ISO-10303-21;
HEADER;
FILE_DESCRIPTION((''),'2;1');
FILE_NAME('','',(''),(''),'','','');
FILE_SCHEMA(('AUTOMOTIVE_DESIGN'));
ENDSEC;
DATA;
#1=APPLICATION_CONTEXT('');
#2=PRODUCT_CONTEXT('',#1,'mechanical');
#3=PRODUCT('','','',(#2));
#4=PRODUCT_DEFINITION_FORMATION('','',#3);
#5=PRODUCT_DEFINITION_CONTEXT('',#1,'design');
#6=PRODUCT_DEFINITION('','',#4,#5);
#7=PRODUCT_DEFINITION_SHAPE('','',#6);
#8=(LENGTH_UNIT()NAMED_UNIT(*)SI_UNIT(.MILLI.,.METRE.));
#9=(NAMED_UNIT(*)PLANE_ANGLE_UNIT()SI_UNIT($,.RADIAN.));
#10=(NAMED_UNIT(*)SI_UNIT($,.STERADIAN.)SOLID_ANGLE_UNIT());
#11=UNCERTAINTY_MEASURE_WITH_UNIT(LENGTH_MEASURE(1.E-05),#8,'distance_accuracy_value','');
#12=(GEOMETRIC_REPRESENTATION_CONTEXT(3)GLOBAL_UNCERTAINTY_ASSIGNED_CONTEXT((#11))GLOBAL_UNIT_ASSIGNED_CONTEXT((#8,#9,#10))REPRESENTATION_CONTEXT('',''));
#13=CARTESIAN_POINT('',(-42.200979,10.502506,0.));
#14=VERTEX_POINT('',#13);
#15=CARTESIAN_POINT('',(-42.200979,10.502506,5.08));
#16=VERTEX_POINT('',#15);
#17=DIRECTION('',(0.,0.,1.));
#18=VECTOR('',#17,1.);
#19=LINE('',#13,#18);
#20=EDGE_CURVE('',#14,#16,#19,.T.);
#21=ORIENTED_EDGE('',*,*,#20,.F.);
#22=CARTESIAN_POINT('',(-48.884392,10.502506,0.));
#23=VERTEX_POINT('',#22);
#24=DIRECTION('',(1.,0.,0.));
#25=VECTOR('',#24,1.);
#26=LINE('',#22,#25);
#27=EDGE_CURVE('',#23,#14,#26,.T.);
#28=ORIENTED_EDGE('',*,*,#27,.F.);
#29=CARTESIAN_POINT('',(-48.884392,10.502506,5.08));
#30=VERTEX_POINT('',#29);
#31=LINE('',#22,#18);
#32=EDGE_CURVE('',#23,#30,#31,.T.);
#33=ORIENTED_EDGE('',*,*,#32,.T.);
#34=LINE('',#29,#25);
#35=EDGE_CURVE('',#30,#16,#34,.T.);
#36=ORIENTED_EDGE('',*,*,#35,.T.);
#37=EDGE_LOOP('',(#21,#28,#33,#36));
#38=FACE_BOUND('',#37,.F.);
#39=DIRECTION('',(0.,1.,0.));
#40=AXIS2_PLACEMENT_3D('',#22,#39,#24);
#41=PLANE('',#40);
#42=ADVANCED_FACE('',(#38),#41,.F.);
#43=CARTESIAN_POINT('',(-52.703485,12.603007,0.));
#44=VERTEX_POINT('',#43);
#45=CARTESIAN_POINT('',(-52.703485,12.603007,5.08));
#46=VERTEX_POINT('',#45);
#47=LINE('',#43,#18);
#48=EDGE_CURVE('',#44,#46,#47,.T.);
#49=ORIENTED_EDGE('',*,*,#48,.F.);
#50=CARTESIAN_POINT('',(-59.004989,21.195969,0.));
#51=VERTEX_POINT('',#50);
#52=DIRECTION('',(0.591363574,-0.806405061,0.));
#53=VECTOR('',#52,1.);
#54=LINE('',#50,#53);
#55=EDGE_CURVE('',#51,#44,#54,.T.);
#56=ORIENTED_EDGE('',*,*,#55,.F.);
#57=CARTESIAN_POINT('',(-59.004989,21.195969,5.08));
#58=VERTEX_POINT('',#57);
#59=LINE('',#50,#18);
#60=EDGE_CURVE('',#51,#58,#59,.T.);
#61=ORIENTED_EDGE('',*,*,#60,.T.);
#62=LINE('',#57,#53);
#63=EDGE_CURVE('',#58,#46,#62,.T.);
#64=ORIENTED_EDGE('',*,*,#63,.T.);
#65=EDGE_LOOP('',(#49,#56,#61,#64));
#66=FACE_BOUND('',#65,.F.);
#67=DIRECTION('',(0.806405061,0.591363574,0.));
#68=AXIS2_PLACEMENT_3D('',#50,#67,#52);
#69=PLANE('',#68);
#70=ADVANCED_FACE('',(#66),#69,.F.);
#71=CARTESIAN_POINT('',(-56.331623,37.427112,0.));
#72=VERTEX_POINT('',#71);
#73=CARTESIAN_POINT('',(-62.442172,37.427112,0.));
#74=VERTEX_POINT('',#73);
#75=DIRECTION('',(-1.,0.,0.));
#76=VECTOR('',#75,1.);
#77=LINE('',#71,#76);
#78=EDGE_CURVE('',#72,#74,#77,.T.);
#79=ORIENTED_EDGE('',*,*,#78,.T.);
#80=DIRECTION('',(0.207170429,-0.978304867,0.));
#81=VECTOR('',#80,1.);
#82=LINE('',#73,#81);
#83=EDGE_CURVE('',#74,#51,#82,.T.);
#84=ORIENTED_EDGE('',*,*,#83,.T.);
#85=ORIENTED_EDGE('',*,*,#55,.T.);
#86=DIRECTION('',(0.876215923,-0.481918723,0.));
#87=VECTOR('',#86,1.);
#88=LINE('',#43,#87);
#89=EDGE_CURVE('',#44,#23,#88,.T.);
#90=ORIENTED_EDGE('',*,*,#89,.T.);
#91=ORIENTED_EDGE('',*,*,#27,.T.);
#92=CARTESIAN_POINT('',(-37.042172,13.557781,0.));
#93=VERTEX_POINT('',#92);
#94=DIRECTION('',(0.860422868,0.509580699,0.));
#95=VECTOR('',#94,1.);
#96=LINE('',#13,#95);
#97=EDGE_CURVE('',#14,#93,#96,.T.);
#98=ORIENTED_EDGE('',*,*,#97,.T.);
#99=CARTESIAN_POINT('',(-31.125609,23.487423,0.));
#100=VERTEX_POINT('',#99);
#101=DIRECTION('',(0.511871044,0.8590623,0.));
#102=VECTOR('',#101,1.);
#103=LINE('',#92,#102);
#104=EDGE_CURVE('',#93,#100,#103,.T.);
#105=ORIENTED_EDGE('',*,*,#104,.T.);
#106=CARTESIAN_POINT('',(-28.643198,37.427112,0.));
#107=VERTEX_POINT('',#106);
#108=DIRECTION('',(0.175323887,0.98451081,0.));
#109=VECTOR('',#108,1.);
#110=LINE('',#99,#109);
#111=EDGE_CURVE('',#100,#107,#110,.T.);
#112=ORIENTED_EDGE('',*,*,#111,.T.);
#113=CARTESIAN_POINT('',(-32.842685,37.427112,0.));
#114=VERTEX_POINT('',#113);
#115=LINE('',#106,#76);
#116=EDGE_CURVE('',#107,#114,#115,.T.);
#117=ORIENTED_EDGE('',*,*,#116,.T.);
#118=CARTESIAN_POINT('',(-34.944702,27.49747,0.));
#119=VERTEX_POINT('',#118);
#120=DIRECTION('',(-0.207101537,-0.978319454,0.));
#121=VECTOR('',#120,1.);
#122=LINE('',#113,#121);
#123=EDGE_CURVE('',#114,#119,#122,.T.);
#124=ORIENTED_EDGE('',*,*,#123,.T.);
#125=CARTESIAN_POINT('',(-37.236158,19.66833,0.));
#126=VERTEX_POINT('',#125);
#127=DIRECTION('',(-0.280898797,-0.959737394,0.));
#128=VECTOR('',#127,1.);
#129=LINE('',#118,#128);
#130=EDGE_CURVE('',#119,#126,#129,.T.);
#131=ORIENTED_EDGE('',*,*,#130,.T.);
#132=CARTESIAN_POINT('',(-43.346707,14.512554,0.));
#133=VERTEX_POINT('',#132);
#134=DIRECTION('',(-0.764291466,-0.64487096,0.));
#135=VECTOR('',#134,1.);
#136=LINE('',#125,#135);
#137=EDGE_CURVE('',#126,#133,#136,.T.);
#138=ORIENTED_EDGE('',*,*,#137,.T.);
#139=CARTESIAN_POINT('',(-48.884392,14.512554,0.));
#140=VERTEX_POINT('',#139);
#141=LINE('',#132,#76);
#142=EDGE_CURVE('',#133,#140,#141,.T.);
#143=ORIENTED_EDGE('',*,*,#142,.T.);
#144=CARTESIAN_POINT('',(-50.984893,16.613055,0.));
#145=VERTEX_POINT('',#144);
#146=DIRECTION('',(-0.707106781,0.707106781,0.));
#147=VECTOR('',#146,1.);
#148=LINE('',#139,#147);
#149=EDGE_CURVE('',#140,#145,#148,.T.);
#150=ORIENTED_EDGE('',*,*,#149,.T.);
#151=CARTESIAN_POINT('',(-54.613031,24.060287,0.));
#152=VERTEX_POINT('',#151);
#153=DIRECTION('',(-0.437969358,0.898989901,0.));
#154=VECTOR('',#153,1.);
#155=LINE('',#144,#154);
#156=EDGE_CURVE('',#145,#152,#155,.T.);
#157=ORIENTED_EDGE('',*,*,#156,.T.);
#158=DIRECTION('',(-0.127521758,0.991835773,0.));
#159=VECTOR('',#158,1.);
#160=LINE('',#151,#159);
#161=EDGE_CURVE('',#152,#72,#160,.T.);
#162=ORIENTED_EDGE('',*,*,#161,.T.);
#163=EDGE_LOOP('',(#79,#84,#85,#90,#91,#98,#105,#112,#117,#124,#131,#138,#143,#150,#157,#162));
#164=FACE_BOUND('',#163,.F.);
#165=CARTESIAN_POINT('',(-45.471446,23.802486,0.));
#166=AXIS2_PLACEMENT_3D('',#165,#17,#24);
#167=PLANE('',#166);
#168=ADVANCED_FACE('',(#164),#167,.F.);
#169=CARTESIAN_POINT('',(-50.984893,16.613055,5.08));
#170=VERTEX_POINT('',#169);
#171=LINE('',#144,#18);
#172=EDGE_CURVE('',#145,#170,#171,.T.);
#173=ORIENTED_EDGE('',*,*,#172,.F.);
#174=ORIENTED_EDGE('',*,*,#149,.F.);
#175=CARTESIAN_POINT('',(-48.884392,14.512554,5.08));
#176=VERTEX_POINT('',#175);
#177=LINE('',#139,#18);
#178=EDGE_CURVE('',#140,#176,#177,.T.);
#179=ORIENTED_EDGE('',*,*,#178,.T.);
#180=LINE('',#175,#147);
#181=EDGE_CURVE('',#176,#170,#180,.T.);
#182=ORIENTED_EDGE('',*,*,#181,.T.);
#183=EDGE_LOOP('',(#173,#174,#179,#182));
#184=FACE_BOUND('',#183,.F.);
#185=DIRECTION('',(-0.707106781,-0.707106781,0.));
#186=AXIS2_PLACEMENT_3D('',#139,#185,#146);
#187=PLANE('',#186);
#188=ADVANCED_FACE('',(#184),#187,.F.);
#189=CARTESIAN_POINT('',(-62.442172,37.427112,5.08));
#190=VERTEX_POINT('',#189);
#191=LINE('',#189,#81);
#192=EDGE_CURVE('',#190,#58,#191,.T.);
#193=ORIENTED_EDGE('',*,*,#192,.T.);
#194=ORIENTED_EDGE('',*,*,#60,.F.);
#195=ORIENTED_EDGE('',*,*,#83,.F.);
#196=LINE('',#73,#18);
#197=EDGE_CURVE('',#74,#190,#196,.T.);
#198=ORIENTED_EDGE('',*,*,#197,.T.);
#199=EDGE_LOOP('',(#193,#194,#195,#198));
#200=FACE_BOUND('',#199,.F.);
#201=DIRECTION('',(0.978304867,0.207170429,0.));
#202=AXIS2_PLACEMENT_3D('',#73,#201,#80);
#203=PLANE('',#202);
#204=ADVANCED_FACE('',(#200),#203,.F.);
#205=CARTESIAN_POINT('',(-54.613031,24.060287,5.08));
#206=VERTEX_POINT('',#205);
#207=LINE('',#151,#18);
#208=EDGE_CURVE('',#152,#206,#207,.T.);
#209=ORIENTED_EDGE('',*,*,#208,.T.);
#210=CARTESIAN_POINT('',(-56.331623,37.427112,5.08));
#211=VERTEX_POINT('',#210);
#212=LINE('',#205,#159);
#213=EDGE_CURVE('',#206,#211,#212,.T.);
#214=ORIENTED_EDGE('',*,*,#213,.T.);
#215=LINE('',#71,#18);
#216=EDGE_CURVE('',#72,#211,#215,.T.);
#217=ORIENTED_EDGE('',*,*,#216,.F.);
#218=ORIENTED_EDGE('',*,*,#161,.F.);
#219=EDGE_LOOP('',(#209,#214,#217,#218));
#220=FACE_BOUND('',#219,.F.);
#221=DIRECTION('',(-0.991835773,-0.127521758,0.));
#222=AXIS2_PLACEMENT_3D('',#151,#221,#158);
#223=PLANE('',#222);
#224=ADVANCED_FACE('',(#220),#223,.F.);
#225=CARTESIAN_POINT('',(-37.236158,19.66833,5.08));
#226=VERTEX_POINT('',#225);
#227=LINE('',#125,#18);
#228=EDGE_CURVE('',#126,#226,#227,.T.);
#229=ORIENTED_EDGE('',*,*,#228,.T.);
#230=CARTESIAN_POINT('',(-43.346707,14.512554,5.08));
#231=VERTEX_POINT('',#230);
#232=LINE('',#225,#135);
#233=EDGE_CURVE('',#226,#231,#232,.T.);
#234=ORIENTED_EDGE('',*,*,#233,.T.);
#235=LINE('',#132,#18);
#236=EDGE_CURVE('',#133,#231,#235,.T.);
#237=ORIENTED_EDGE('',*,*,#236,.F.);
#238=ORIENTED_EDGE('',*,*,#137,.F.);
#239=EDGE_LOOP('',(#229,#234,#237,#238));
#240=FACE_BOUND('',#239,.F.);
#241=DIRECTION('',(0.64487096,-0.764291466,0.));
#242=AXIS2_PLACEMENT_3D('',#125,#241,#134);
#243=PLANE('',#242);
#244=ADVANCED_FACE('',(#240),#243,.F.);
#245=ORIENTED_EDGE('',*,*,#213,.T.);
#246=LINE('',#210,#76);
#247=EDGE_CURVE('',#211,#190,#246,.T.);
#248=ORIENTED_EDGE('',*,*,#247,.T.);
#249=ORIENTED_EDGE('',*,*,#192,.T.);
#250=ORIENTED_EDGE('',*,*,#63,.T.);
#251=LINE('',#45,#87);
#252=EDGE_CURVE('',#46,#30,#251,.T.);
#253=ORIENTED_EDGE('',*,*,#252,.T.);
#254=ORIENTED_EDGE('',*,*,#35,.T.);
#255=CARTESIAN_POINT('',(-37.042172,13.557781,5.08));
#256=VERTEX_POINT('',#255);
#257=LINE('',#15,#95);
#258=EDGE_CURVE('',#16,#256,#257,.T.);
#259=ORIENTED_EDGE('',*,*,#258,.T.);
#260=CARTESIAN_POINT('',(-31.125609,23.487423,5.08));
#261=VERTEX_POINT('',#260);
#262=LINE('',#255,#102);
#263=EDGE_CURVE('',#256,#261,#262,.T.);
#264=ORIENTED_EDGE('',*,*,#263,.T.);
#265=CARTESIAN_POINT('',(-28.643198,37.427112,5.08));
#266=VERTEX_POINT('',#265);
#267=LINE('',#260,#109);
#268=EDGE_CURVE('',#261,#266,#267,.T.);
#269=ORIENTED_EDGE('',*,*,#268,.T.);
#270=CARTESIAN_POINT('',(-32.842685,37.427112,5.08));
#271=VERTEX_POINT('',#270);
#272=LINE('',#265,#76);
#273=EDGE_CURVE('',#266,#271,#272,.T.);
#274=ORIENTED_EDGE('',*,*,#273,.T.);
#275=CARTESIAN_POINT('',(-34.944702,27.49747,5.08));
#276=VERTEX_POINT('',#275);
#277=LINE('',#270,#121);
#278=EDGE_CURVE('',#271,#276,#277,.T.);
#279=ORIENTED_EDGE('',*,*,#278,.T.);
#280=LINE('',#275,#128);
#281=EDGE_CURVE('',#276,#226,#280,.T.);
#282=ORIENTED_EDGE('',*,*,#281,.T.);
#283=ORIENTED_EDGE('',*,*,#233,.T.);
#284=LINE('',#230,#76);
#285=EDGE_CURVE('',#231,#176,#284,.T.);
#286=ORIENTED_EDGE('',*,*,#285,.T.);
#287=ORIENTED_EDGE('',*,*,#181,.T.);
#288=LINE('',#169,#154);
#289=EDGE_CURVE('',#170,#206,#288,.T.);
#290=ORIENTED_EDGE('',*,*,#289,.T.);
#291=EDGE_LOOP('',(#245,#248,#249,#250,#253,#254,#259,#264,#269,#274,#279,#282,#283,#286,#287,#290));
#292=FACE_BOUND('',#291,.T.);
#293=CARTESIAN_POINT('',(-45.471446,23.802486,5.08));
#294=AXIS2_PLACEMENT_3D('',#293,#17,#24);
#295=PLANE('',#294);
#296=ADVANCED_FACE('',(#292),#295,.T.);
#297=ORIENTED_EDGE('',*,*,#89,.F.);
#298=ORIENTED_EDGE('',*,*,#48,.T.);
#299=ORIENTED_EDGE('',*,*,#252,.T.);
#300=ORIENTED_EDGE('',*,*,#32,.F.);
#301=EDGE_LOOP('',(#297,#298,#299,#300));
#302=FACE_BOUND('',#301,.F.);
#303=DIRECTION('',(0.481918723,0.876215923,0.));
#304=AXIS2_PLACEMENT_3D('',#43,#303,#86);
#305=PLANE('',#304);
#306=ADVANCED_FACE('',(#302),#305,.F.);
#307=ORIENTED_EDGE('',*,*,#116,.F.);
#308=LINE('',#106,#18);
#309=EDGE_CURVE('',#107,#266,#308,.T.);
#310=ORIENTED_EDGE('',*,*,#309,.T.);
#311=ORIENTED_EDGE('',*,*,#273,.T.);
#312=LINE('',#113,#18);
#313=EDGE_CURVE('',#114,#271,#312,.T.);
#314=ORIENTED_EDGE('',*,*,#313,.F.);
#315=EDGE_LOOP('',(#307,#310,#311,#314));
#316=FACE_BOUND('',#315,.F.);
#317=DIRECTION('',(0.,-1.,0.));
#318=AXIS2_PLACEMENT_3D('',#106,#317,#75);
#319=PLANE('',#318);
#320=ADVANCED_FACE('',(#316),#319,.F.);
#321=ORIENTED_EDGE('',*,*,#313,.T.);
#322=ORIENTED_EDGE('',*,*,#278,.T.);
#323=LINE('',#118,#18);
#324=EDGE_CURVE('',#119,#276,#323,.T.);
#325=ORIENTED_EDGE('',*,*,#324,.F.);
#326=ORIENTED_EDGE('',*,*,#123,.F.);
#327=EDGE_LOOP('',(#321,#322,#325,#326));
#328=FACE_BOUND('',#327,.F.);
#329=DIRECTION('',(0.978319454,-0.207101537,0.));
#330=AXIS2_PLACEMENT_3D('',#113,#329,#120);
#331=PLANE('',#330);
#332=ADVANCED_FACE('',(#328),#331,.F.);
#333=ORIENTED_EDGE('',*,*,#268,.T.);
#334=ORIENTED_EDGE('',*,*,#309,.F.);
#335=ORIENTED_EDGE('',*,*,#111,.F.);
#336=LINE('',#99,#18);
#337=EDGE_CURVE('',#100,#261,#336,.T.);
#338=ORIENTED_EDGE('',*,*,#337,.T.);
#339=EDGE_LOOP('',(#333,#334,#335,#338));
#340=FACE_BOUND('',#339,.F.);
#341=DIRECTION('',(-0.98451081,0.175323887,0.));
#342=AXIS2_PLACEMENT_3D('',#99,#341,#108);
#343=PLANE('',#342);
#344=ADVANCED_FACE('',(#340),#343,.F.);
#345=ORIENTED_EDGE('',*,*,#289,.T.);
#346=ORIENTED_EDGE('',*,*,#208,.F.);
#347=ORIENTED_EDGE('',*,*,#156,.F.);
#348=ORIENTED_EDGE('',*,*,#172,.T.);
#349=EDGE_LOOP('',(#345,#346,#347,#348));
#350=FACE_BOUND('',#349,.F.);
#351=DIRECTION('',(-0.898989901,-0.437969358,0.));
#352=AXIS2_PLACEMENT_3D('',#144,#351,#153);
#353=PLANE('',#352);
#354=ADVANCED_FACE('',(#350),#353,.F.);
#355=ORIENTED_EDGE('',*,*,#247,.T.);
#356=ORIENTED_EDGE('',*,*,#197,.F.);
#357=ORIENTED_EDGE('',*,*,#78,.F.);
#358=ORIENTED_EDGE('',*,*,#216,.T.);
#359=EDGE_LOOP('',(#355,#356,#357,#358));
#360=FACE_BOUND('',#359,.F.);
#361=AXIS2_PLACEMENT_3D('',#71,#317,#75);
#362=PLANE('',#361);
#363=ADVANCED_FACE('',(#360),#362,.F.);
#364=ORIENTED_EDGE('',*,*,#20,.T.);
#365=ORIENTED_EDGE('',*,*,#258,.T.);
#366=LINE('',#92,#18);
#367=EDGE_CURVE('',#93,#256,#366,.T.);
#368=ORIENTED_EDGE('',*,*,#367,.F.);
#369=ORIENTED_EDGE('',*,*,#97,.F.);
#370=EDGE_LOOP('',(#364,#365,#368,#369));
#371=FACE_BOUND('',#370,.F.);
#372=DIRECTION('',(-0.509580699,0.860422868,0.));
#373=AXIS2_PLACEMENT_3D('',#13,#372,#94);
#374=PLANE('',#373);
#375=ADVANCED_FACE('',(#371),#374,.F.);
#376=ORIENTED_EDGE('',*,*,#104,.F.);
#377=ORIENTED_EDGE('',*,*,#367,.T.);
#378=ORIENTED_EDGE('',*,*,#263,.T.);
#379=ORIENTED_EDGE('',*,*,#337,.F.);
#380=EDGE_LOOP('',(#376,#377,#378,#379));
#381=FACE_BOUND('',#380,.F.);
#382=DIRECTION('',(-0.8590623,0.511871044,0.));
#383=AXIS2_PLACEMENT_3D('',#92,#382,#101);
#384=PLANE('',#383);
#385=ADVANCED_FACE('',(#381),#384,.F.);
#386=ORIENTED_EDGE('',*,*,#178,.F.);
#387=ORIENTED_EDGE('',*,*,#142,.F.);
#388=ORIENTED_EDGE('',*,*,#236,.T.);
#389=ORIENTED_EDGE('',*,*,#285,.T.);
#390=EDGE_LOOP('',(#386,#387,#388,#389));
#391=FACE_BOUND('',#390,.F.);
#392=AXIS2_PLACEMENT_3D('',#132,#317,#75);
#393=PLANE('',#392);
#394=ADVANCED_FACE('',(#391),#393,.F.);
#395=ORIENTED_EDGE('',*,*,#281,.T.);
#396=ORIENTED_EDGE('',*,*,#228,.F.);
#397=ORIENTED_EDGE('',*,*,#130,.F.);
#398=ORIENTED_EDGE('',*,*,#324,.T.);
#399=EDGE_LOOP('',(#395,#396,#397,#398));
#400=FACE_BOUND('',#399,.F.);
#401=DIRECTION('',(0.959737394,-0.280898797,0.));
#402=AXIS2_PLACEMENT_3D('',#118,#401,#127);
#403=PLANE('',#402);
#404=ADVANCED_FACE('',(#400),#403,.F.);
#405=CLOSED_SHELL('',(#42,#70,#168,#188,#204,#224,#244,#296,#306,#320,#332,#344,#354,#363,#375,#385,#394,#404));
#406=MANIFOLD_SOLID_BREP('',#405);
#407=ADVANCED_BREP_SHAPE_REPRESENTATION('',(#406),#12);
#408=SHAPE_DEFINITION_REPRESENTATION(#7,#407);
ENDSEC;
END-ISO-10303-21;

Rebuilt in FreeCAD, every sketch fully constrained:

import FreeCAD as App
import Part
import Sketcher
Q = App.Units.Quantity


def add_polygon(sketch, points):
    """Adds a closed chain of lines whose ends are joined by coincident constraints."""
    first, n = sketch.GeometryCount, len(points)
    for a, b in zip(points, points[1:] + points[:1]):
        sketch.addGeometry(Part.LineSegment(App.Vector(*a, 0), App.Vector(*b, 0)), False)
    for i in range(n):
        sketch.addConstraint(Sketcher.Constraint("Coincident", first + i, 2, first + (i + 1) % n, 1))

doc = App.newDocument("Part")
params = doc.addObject("Spreadsheet::Sheet", "Params")
for row, (alias, value) in enumerate([
    ("pad1_length", "0.2 in"),
], start=1):
    params.set(f"A{row}", alias)
    params.set(f"B{row}", "=" + value)
    params.setAlias(f"B{row}", alias)

body = doc.addObject("PartDesign::Body", "Body")

# Sketch on XY plane
sketch1 = body.newObject("Sketcher::SketchObject", "Sketch")
sketch1.AttachmentSupport = (doc.getObject("XY_Plane"), [""])
sketch1.MapMode = "FlatFace"
add_polygon(sketch1, [(-28.6, 37.4), (-32.8, 37.4), (-34.9, 27.5), (-37.2, 19.7), (-43.3, 14.5), (-48.9, 14.5), (-51, 16.6), (-54.6, 24.1), (-56.3, 37.4), (-62.4, 37.4), (-59, 21.2), (-52.7, 12.6), (-48.9, 10.5), (-42.2, 10.5), (-37, 13.6), (-31.1, 23.5)])  # lines 0-15
sketch1.addConstraint(Sketcher.Constraint("Horizontal", 0))
sketch1.addConstraint(Sketcher.Constraint("Horizontal", 4))
sketch1.addConstraint(Sketcher.Constraint("Horizontal", 8))
sketch1.addConstraint(Sketcher.Constraint("Horizontal", 12))
sketch1.addConstraint(Sketcher.Constraint("Horizontal", 0, 2, 7, 2))
sketch1.addConstraint(Sketcher.Constraint("Vertical", 4, 2, 11, 2))
sketch1.addConstraint(Sketcher.Constraint("Angle", 5, Q("135 deg")))
sketch1.addConstraint(Sketcher.Constraint("Distance", 6, Q("8.284 mm")))
sketch1.addConstraint(Sketcher.Constraint("Distance", 14, Q("11.558698 mm")))
sketch1.addConstraint(Sketcher.Constraint("Distance", 15, Q("14.159 mm")))
sketch1.addConstraint(Sketcher.Constraint("DistanceX", 8, 2, 8, 1, Q("6.110549 mm")))
sketch1.addConstraint(Sketcher.Constraint("DistanceX", 15, 2, -1, 1, Q("28.643198 mm")))
sketch1.addConstraint(Sketcher.Constraint("DistanceX", 5, 2, 4, 2, Q("2.100501 mm")))
sketch1.addConstraint(Sketcher.Constraint("DistanceY", 11, 2, 10, 2, Q("2.100501 mm")))
sketch1.addConstraint(Sketcher.Constraint("DistanceX", 3, 2, 14, 2, Q("12.221098 mm")))
sketch1.addConstraint(Sketcher.Constraint("Distance", 3, Q("7.995051 mm")))
sketch1.addConstraint(Sketcher.Constraint("Distance", 9, Q("16.591089 mm")))
sketch1.addConstraint(Sketcher.Constraint("Distance", 11, Q("4.358621 mm")))
sketch1.addConstraint(Sketcher.Constraint("DistanceX", 0, 2, 0, 1, Q("4.199487 mm")))
sketch1.addConstraint(Sketcher.Constraint("DistanceX", 4, 2, 4, 1, Q("5.537685 mm")))
sketch1.addConstraint(Sketcher.Constraint("DistanceX", 12, 1, 12, 2, Q("6.683413 mm")))
sketch1.addConstraint(Sketcher.Constraint("DistanceY", -1, 1, 1, 2, Q("27.49747 mm")))
sketch1.addConstraint(Sketcher.Constraint("DistanceX", 2, 2, -1, 1, Q("37.236158 mm")))
sketch1.addConstraint(Sketcher.Constraint("DistanceY", -1, 1, 2, 2, Q("19.66833 mm")))
sketch1.addConstraint(Sketcher.Constraint("DistanceX", 4, 2, -1, 1, Q("48.884392 mm")))
sketch1.addConstraint(Sketcher.Constraint("DistanceX", 6, 2, -1, 1, Q("54.613031 mm")))
sketch1.addConstraint(Sketcher.Constraint("DistanceX", 9, 2, -1, 1, Q("59.004989 mm")))
sketch1.addConstraint(Sketcher.Constraint("DistanceY", -1, 1, 9, 2, Q("21.195969 mm")))
sketch1.addConstraint(Sketcher.Constraint("DistanceY", -1, 1, 13, 2, Q("13.557781 mm")))
sketch1.addConstraint(Sketcher.Constraint("DistanceY", 2, 2, 0, 2, Q("17.758782 mm")))
sketch1.addConstraint(Sketcher.Constraint("DistanceX", 4, 2, 1, 2, Q("13.93969 mm")))
sketch1.addConstraint(Sketcher.Constraint("DistanceY", 10, 2, 6, 2, Q("11.45728 mm")))
pad1 = body.newObject("PartDesign::Pad", "Pad")
pad1.Profile = sketch1
pad1.setExpression("Length", "Params.pad1_length")

doc.recompute()
